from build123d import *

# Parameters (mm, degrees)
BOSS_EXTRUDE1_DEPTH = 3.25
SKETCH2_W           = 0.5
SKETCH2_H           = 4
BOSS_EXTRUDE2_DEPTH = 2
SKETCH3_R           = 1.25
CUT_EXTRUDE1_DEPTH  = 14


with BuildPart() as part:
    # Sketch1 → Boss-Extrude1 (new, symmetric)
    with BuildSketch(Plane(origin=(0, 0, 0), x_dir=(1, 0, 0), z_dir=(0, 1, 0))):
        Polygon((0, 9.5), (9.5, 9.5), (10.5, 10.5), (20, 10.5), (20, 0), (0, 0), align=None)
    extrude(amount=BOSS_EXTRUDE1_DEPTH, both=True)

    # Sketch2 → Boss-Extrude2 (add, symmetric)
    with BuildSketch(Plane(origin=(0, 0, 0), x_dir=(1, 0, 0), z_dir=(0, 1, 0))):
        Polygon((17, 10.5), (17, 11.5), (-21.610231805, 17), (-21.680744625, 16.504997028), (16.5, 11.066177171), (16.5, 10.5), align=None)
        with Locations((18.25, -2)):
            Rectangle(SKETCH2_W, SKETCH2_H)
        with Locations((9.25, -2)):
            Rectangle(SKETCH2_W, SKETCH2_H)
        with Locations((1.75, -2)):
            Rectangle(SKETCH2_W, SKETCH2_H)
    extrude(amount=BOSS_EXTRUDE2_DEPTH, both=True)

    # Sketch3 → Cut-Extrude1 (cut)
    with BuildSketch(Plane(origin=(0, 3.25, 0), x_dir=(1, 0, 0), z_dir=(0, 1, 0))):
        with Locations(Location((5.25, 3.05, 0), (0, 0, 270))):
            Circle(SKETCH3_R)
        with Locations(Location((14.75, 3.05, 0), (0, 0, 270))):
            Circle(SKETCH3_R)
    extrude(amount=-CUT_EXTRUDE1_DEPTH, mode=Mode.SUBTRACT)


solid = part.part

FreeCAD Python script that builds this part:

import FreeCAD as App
import Part
import Sketcher

V = App.Vector
Q = App.Units.Quantity


def add_polygon(sketch, points):
    """Adds a closed chain of lines whose ends are joined by coincident constraints."""
    first, n = sketch.GeometryCount, len(points)
    for a, b in zip(points, points[1:] + points[:1]):
        sketch.addGeometry(Part.LineSegment(App.Vector(*a, 0), App.Vector(*b, 0)), False)
    for i in range(n):
        sketch.addConstraint(Sketcher.Constraint("Coincident", first + i, 2, first + (i + 1) % n, 1))

doc = App.newDocument("Part")
params = doc.addObject("Spreadsheet::Sheet", "Params")
for row, (alias, value) in enumerate([
    ("sketch1_width", "20 mm"),
    ("sketch1_width2", "9.5 mm"),
    ("pad1_length", "6.5 mm"),
    ("sketch2_height", "1 mm"),
    ("sketch2_height2", "4 mm"),
    ("sketch2_length", "39 mm"),
    ("sketch2_width", "0.5 mm"),
    ("sketch2_length2", "0.5 mm"),
    ("pad2_length", "4 mm"),
    ("sketch3_diameter", "2.5 mm"),
    ("pocket1_length", "14 mm"),
], start=1):
    params.set(f"A{row}", alias)
    params.set(f"B{row}", "=" + value)
    params.setAlias(f"B{row}", alias)

body = doc.addObject("PartDesign::Body", "Body")

sketch1 = body.newObject("Sketcher::SketchObject", "Sketch")
sketch1.AttachmentSupport = (doc.getObject("XZ_Plane"), [""])
sketch1.MapMode = "FlatFace"
add_polygon(sketch1, [(9.5, -9.5), (0, -9.5), (0, 0), (20, 0), (20, -10.5), (10.5, -10.5)])
sketch1.addConstraint([
    Sketcher.Constraint("Horizontal", 0),
    Sketcher.Constraint("Vertical", 1),
    Sketcher.Constraint("Horizontal", 2),
    Sketcher.Constraint("Vertical", 3),
    Sketcher.Constraint("Horizontal", 4),
    Sketcher.Constraint("Coincident", 1, 2, -1, 1),
    Sketcher.Constraint("Equal", 0, 4),
    Sketcher.Constraint("Equal", 4, 1),
    Sketcher.Constraint("DistanceX", 2, 1, 2, 2, 20.0),
    Sketcher.Constraint("Angle", 5, Q("135 deg")),
    Sketcher.Constraint("DistanceX", 0, 2, 0, 1, 9.5),
])
sketch1.setExpression("Constraints[14]", "Params.sketch1_width")
sketch1.setExpression("Constraints[16]", "Params.sketch1_width2")
pad1 = body.newObject("PartDesign::Pad", "Pad")
pad1.Profile = sketch1
pad1.setExpression("Length", "Params.pad1_length")
pad1.Midplane = True

sketch2 = body.newObject("Sketcher::SketchObject", "Sketch001")
sketch2.AttachmentSupport = (doc.getObject("XZ_Plane"), [""])
sketch2.MapMode = "FlatFace"
add_polygon(sketch2, [(17, -10.5), (17, -11.5), (-21.610232, -17), (-21.680745, -16.504997), (16.5, -11.066177), (16.5, -10.5)])
add_polygon(sketch2, [(18, 0), (18, 4), (18.5, 4), (18.5, 0)])
add_polygon(sketch2, [(9, 0), (9, 4), (9.5, 4), (9.5, 0)])
add_polygon(sketch2, [(1.5, 0), (1.5, 4), (2, 4), (2, 0)])
sketch2.addConstraint([
    Sketcher.Constraint("Vertical", 0),
    Sketcher.Constraint("Vertical", 4),
    Sketcher.Constraint("Horizontal", 5),
    Sketcher.Constraint("Vertical", 6),
    Sketcher.Constraint("Horizontal", 7),
    Sketcher.Constraint("Vertical", 8),
    Sketcher.Constraint("Horizontal", 9),
    Sketcher.Constraint("Vertical", 10),
    Sketcher.Constraint("Horizontal", 11),
    Sketcher.Constraint("Vertical", 12),
    Sketcher.Constraint("Horizontal", 13),
    Sketcher.Constraint("Vertical", 14),
    Sketcher.Constraint("Horizontal", 15),
    Sketcher.Constraint("Vertical", 16),
    Sketcher.Constraint("Horizontal", 17),
    Sketcher.Constraint("PointOnObject", 8, 2, -1),
    Sketcher.Constraint("PointOnObject", 12, 2, -1),
    Sketcher.Constraint("PointOnObject", 16, 2, -1),
    Sketcher.Constraint("Perpendicular", 1, 2),
    Sketcher.Constraint("Perpendicular", 2, 3),
    Sketcher.Constraint("Horizontal", 7, 2, 10, 2),
    Sketcher.Constraint("Horizontal", 11, 2, 14, 2),
    Sketcher.Constraint("Equal", 5, 7),
    Sketcher.Constraint("Equal", 9, 11),
    Sketcher.Constraint("Equal", 13, 15),
    Sketcher.Constraint("DistanceY", 0, 2, 0, 1, 1.0),
    Sketcher.Constraint("DistanceY", 6, 1, 6, 2, 4.0),
    Sketcher.Constraint("Distance", 1, 39.0),
    Sketcher.Constraint("DistanceX", 5, 1, 5, 2, 0.5),
    Sketcher.Constraint("DistanceX", -1, 1, 0, 2, 17.0),
    Sketcher.Constraint("DistanceY", 1, 2, -1, 1, 17.0),
    Sketcher.Constraint("DistanceX", -1, 1, 6, 2, 18.0),
    Sketcher.Constraint("DistanceX", -1, 1, 10, 2, 9.0),
    Sketcher.Constraint("DistanceX", -1, 1, 15, 2, 2.0),
    Sketcher.Constraint("Distance", 2, 0.5),
    Sketcher.Constraint("DistanceY", 0, 2, -1, 1, 11.5),
])
sketch2.setExpression("Constraints[43]", "Params.sketch2_height")
sketch2.setExpression("Constraints[44]", "Params.sketch2_height2")
sketch2.setExpression("Constraints[45]", "Params.sketch2_length")
sketch2.setExpression("Constraints[46]", "Params.sketch2_width")
sketch2.setExpression("Constraints[52]", "Params.sketch2_length2")
pad2 = body.newObject("PartDesign::Pad", "Pad001")
pad2.Profile = sketch2
pad2.setExpression("Length", "Params.pad2_length")
pad2.Midplane = True

sketch3 = body.newObject("Sketcher::SketchObject", "Sketch002")
sketch3.AttachmentSupport = (doc.getObject("XZ_Plane"), [""])
sketch3.MapMode = "FlatFace"
sketch3.AttachmentOffset = App.Placement(V(0, 0, -3.25), App.Rotation())
sketch3.addGeometry([
    Part.Circle(V(5.25, -3.05, 0), V(0, 0, 1), 1.25),
    Part.Circle(V(14.75, -3.05, 0), V(0, 0, 1), 1.25),
], False)
sketch3.addConstraint([
    Sketcher.Constraint("Equal", 0, 1),
    Sketcher.Constraint("Horizontal", 0, 3, 1, 3),
    Sketcher.Constraint("Diameter", 0, 2.5),
    Sketcher.Constraint("DistanceX", 0, 3, 1, 3, 9.5),
    Sketcher.Constraint("DistanceX", -1, 1, 0, 3, 5.25),
    Sketcher.Constraint("DistanceY", 0, 3, -1, 1, 3.05),
])
sketch3.setExpression("Constraints[2]", "Params.sketch3_diameter")
pocket1 = body.newObject("PartDesign::Pocket", "Pocket")
pocket1.Profile = sketch3
pocket1.setExpression("Length", "Params.pocket1_length")
pocket1.Reversed = True

doc.recompute()
